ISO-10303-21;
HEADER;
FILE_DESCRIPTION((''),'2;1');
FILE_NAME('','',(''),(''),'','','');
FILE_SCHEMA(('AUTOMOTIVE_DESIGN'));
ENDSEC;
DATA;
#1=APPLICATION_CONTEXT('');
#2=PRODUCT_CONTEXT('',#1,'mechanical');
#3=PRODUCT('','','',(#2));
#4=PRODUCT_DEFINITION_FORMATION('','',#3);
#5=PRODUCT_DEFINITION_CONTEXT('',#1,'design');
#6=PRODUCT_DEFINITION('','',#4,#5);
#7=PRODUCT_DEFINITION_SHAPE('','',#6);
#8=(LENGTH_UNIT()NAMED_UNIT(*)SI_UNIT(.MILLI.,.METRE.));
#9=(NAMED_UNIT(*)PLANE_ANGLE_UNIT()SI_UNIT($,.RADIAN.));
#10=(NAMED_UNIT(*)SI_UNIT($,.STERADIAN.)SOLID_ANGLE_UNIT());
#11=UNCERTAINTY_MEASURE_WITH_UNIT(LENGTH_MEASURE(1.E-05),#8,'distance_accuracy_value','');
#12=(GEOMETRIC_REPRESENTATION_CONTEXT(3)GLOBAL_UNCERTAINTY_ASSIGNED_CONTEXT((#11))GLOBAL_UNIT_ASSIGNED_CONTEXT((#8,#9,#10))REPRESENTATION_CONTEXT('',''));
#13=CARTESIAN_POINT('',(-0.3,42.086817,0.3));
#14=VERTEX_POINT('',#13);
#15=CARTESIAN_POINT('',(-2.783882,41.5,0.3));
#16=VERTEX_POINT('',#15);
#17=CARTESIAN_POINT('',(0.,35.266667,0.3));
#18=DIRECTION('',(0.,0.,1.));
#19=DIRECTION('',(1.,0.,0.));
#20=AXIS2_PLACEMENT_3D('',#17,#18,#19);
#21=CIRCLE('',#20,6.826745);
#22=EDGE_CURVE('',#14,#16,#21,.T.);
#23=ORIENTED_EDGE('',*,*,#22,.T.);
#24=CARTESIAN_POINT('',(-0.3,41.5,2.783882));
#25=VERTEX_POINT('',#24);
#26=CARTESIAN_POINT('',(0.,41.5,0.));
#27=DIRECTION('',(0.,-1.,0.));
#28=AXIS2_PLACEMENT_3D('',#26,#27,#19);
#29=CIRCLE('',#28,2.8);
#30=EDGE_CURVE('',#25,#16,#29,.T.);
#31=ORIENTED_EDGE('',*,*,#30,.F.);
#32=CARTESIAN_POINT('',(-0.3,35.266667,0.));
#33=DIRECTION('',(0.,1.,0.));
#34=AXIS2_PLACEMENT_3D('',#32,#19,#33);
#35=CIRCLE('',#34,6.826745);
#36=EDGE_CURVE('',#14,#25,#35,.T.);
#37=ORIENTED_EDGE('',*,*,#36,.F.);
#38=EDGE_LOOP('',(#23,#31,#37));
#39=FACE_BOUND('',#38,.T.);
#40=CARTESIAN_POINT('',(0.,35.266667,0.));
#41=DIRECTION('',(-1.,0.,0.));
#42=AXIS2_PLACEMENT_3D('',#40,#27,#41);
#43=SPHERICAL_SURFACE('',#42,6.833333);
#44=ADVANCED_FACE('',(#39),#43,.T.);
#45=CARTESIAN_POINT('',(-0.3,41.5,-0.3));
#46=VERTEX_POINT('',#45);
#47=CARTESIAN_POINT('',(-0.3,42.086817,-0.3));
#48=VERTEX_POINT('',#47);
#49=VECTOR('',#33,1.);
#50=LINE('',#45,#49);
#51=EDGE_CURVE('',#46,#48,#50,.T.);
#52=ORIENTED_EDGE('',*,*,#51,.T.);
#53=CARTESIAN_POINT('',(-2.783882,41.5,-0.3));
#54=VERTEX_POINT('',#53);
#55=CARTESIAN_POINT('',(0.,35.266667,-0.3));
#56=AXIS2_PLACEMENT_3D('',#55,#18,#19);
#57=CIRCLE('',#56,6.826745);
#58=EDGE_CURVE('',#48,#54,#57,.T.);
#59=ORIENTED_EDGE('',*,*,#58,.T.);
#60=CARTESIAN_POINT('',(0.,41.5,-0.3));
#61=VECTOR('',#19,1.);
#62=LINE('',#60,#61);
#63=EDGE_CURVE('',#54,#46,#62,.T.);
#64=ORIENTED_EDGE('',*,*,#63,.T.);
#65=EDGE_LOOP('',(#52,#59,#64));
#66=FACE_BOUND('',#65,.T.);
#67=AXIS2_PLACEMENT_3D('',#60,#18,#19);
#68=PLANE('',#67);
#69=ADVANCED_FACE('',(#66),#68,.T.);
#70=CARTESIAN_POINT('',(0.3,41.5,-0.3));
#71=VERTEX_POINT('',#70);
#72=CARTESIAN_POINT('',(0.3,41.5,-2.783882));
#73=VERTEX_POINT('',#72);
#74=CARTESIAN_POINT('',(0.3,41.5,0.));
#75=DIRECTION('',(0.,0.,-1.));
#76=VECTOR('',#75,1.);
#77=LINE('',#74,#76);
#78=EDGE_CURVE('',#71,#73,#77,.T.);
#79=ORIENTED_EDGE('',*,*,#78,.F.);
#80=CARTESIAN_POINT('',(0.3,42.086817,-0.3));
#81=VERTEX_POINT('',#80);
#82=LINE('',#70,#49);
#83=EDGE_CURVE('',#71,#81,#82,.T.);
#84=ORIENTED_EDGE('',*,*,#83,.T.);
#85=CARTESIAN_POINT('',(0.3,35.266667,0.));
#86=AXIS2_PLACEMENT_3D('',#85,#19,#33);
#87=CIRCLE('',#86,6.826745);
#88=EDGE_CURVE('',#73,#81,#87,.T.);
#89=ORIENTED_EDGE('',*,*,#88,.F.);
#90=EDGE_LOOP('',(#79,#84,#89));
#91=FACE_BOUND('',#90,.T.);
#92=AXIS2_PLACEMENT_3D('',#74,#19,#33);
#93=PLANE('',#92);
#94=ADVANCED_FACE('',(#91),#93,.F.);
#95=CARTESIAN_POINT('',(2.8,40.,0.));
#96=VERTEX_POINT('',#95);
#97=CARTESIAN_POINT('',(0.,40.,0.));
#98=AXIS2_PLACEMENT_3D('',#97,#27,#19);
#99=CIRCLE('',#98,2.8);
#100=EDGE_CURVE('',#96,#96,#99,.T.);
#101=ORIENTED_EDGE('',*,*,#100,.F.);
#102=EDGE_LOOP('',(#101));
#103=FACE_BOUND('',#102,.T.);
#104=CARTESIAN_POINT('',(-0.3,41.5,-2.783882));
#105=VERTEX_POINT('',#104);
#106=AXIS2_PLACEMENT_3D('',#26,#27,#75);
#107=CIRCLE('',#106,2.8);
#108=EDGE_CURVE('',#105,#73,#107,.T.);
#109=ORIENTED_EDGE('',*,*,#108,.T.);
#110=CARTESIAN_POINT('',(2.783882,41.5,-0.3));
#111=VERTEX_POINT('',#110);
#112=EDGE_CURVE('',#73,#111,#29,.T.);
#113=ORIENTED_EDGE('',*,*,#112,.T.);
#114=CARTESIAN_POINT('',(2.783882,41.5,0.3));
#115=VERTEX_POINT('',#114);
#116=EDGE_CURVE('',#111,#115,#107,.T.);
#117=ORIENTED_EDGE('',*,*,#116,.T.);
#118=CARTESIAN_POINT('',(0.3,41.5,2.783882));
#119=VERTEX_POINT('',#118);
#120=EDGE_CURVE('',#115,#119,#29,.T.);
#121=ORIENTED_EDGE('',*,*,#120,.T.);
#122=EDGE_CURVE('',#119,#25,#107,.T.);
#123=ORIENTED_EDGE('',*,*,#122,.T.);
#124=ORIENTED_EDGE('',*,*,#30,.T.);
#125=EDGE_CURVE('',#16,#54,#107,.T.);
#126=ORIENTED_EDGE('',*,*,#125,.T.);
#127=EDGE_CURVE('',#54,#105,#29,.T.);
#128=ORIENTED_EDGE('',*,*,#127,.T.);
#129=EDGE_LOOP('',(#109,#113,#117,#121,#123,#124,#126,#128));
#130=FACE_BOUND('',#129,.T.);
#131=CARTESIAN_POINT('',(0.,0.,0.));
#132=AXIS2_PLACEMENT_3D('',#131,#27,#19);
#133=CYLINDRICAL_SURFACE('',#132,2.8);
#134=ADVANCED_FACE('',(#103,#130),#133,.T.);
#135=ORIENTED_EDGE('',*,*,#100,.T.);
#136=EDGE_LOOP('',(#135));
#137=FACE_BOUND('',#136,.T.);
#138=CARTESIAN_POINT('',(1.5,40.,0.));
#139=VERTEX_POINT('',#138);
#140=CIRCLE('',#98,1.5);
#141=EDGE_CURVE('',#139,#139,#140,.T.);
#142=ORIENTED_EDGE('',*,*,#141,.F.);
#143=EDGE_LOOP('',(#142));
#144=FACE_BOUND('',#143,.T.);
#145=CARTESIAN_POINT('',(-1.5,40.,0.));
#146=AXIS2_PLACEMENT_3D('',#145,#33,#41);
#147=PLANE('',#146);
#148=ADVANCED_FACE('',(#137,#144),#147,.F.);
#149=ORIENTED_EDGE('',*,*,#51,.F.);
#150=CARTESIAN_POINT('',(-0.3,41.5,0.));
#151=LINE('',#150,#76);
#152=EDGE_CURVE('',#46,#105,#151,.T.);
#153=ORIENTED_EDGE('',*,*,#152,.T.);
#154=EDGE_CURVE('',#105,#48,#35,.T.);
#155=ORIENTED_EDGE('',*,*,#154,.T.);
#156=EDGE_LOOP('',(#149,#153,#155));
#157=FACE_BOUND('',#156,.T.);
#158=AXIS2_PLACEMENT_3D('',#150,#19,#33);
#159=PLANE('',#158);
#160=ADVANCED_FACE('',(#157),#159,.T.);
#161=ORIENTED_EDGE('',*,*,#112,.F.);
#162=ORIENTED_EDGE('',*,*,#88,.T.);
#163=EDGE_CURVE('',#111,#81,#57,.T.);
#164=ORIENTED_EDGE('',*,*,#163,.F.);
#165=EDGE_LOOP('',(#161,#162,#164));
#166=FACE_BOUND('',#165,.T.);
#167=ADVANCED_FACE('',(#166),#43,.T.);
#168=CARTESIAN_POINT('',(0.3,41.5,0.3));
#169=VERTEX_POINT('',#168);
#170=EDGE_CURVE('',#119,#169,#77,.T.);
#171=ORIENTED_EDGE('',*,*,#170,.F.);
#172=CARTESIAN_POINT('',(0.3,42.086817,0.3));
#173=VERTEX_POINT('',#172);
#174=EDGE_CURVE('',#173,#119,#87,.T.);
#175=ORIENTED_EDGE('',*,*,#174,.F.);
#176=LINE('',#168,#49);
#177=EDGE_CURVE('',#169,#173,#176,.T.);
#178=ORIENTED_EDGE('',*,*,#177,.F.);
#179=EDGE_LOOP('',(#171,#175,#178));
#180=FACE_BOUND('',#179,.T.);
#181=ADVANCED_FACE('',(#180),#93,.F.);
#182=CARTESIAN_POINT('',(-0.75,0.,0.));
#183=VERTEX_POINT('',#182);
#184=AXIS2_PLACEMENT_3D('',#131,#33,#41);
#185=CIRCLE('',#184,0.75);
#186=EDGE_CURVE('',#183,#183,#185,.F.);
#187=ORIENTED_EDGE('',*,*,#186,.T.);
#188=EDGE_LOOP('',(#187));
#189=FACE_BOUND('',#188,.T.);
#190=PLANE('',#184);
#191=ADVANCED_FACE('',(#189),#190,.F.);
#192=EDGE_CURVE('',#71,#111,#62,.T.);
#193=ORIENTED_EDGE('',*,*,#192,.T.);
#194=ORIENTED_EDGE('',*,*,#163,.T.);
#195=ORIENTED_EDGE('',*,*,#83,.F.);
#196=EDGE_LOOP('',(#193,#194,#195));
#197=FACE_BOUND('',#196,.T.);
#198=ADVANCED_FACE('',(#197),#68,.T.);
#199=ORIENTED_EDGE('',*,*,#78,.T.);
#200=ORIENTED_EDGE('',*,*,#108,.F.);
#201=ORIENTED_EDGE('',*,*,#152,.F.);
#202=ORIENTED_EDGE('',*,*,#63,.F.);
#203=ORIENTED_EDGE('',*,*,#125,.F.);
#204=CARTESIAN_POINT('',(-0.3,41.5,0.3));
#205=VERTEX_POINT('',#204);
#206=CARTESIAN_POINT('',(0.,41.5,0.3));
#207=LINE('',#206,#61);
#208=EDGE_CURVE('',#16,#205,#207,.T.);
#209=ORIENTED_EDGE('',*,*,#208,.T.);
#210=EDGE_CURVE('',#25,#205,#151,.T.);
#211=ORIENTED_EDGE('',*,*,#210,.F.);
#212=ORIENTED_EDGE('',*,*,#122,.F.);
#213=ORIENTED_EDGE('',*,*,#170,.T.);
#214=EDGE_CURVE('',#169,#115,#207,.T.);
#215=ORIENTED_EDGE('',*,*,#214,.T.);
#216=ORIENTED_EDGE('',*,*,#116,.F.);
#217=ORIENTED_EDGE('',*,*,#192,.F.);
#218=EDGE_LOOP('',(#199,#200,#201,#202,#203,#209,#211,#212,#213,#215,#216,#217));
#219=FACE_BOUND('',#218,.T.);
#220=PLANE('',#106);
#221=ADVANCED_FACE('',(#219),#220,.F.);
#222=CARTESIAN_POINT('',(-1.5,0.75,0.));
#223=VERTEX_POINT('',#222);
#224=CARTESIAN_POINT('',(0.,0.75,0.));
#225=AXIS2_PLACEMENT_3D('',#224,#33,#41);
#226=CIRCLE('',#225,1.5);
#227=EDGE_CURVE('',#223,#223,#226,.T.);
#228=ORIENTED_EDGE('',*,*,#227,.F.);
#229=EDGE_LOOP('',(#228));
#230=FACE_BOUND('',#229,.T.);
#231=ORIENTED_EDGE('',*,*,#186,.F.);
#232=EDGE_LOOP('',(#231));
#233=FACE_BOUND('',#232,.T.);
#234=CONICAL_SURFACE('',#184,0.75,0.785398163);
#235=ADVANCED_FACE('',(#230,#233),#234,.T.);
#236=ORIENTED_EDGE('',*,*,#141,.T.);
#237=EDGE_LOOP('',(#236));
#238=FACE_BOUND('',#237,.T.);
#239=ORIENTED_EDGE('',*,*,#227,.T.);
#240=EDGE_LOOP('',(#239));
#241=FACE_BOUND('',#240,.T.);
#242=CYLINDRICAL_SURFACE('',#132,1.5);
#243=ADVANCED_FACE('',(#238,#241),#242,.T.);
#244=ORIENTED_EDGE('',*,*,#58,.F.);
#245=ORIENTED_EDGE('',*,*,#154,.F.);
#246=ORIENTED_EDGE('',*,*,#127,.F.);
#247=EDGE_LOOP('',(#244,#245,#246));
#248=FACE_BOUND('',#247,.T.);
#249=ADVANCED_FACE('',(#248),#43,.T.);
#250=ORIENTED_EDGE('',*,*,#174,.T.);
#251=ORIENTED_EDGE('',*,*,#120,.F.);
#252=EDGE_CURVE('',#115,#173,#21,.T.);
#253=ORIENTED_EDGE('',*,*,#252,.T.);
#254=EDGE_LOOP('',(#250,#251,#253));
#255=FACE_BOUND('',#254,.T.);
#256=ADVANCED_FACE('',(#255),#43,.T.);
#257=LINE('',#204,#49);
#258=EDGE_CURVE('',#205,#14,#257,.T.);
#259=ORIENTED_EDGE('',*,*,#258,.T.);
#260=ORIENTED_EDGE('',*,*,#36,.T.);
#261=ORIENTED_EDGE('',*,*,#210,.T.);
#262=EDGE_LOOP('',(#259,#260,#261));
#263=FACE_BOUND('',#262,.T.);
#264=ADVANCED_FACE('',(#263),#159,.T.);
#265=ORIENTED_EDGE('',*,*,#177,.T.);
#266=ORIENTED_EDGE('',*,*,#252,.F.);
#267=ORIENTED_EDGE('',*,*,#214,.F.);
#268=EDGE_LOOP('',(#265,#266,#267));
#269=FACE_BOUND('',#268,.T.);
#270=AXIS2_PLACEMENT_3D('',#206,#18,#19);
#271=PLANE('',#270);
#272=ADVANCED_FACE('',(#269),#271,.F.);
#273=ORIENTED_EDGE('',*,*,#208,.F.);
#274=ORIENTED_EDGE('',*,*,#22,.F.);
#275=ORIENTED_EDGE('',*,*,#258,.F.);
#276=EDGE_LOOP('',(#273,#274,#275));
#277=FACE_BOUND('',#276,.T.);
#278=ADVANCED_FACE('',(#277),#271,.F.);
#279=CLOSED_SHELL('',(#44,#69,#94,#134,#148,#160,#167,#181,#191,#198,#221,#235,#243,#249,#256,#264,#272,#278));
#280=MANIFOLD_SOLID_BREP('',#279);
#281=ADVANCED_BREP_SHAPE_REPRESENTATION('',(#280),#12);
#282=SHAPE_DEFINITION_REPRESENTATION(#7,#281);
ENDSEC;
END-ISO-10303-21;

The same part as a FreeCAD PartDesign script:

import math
import FreeCAD as App
import Part
import Sketcher


def edges_at(feature, points):
    """Names of the edges that pass closest to the given points."""
    edges = feature.Shape.Edges
    near = lambda p: min(range(len(edges)), key=lambda i: edges[i].distToShape(Part.Vertex(*p))[0])
    return sorted({f"Edge{near(p) + 1}" for p in points})

doc = App.newDocument("Part")
params = doc.addObject("Spreadsheet::Sheet", "Params")
for row, (alias, value) in enumerate([
    ("sketch1_height", "40 mm"),
    ("sketch1_width", "1.5 mm"),
    ("sketch1_width2", "1.3 mm"),
    ("sketch1_height2", "42.1 mm"),
    ("revolution_angle", "360 deg"),
    ("sketch2_radius", "2.8 mm"),
    ("pocket1_length", "3.5 mm"),
    ("chamfer_size", "0.75 mm"),
], start=1):
    params.set(f"A{row}", alias)
    params.set(f"B{row}", "=" + value)
    params.setAlias(f"B{row}", alias)

body = doc.addObject("PartDesign::Body", "Body")

sketch1 = doc.addObject("Sketcher::SketchObject", "Sketch")
body.addObject(sketch1)
sketch1.AttachmentSupport = (doc.XY_Plane, [""])
sketch1.MapMode = "FlatFace"
sketch1.addGeometry([
    Part.LineSegment(App.Vector(-1.5, 0, 0), App.Vector(0, 0, 0)),
    Part.LineSegment(App.Vector(0, 0, 0), App.Vector(0, 42.1, 0)),
    Part.ArcOfCircle(Part.Circle(App.Vector(0, 35.3, 0), App.Vector(0, 0, 1), 6.8), math.radians(90), math.radians(114)),
    Part.LineSegment(App.Vector(-2.8, 41.5, 0), App.Vector(-2.8, 40, 0)),
    Part.LineSegment(App.Vector(-2.8, 40, 0), App.Vector(-1.5, 40, 0)),
    Part.LineSegment(App.Vector(-1.5, 40, 0), App.Vector(-1.5, 0, 0)),
], False)
sketch1.addConstraint([
    Sketcher.Constraint("Coincident", 0, 2, 1, 1),
    Sketcher.Constraint("Coincident", 1, 2, 2, 1),
    Sketcher.Constraint("Coincident", 2, 2, 3, 1),
    Sketcher.Constraint("Coincident", 3, 2, 4, 1),
    Sketcher.Constraint("Coincident", 4, 2, 5, 1),
    Sketcher.Constraint("Coincident", 5, 2, 0, 1),
    Sketcher.Constraint("Horizontal", 0),
    Sketcher.Constraint("Vertical", 1),
    Sketcher.Constraint("Vertical", 3),
    Sketcher.Constraint("Horizontal", 4),
    Sketcher.Constraint("Vertical", 5),
    Sketcher.Constraint("Coincident", 0, 2, -1, 1),
    Sketcher.Constraint("PointOnObject", 2, 3, -2),
    Sketcher.Constraint("Equal", 0, 3),
    Sketcher.Constraint("DistanceY", 5, 2, 5, 1, 40.0),
    Sketcher.Constraint("DistanceX", 0, 1, 0, 2, 1.5),
    Sketcher.Constraint("DistanceX", 4, 1, 4, 2, 1.3),
    Sketcher.Constraint("DistanceY", 1, 1, 1, 2, 42.1),
])
sketch1.setExpression("Constraints[14]", "Params.sketch1_height")
sketch1.setExpression("Constraints[15]", "Params.sketch1_width")
sketch1.setExpression("Constraints[16]", "Params.sketch1_width2")
sketch1.setExpression("Constraints[17]", "Params.sketch1_height2")
revolution = doc.addObject("PartDesign::Revolution", "Revolution")
body.addObject(revolution)
revolution.Profile = sketch1
revolution.ReferenceAxis = (sketch1, ["V_Axis"])
revolution.setExpression("Angle", "Params.revolution_angle")

sketch2 = doc.addObject("Sketcher::SketchObject", "Sketch001")
body.addObject(sketch2)
sketch2.AttachmentSupport = (doc.XZ_Plane, [""])
sketch2.MapMode = "FlatFace"
sketch2.AttachmentOffset = App.Placement(App.Vector(0, 0, -45), App.Rotation())
sketch2.addGeometry([
    Part.LineSegment(App.Vector(-0.3, -0.3, 0), App.Vector(-0.3, -2.78, 0)),
    Part.ArcOfCircle(Part.Circle(App.Vector(0, 0, 0), App.Vector(0, 0, 1), 2.8), math.radians(-96.15), math.radians(-90)),
    Part.ArcOfCircle(Part.Circle(App.Vector(0, 0, 0), App.Vector(0, 0, 1), 2.8), math.radians(-90), math.radians(-83.85)),
    Part.LineSegment(App.Vector(0.3, -2.78, 0), App.Vector(0.3, -0.3, 0)),
    Part.LineSegment(App.Vector(0.3, -0.3, 0), App.Vector(2.78, -0.3, 0)),
    Part.ArcOfCircle(Part.Circle(App.Vector(0, 0, 0), App.Vector(0, 0, 1), 2.8), math.radians(-6.15), math.radians(0)),
    Part.ArcOfCircle(Part.Circle(App.Vector(0, 0, 0), App.Vector(0, 0, 1), 2.8), math.radians(0), math.radians(6.15)),
    Part.LineSegment(App.Vector(2.78, 0.3, 0), App.Vector(0.3, 0.3, 0)),
    Part.LineSegment(App.Vector(0.3, 0.3, 0), App.Vector(0.3, 2.78, 0)),
    Part.ArcOfCircle(Part.Circle(App.Vector(0, 0, 0), App.Vector(0, 0, 1), 2.8), math.radians(83.85), math.radians(90)),
    Part.ArcOfCircle(Part.Circle(App.Vector(0, 0, 0), App.Vector(0, 0, 1), 2.8), math.radians(90), math.radians(96.15)),
    Part.LineSegment(App.Vector(-0.3, 2.78, 0), App.Vector(-0.3, 0.3, 0)),
    Part.LineSegment(App.Vector(-0.3, 0.3, 0), App.Vector(-2.78, 0.3, 0)),
    Part.ArcOfCircle(Part.Circle(App.Vector(0, 0, 0), App.Vector(0, 0, 1), 2.8), math.radians(173.85), math.radians(180)),
    Part.ArcOfCircle(Part.Circle(App.Vector(0, 0, 0), App.Vector(0, 0, 1), 2.8), math.radians(180), math.radians(186.15)),
    Part.LineSegment(App.Vector(-2.78, -0.3, 0), App.Vector(-0.3, -0.3, 0)),
], False)
sketch2.addConstraint([
    Sketcher.Constraint("Coincident", 0, 2, 1, 1),
    Sketcher.Constraint("Tangent", 1, 2, 2, 1),
    Sketcher.Constraint("Coincident", 2, 2, 3, 1),
    Sketcher.Constraint("Coincident", 3, 2, 4, 1),
    Sketcher.Constraint("Coincident", 4, 2, 5, 1),
    Sketcher.Constraint("Tangent", 5, 2, 6, 1),
    Sketcher.Constraint("Coincident", 6, 2, 7, 1),
    Sketcher.Constraint("Coincident", 7, 2, 8, 1),
    Sketcher.Constraint("Coincident", 8, 2, 9, 1),
    Sketcher.Constraint("Tangent", 9, 2, 10, 1),
    Sketcher.Constraint("Coincident", 10, 2, 11, 1),
    Sketcher.Constraint("Coincident", 11, 2, 12, 1),
    Sketcher.Constraint("Coincident", 12, 2, 13, 1),
    Sketcher.Constraint("Tangent", 13, 2, 14, 1),
    Sketcher.Constraint("Coincident", 14, 2, 15, 1),
    Sketcher.Constraint("Coincident", 15, 2, 0, 1),
    Sketcher.Constraint("Vertical", 0),
    Sketcher.Constraint("Vertical", 3),
    Sketcher.Constraint("Horizontal", 4),
    Sketcher.Constraint("Horizontal", 7),
    Sketcher.Constraint("Vertical", 8),
    Sketcher.Constraint("Vertical", 11),
    Sketcher.Constraint("Horizontal", 12),
    Sketcher.Constraint("Horizontal", 15),
    Sketcher.Constraint("Coincident", 1, 3, -1, 1),
    Sketcher.Constraint("Coincident", 5, 3, -1, 1),
    Sketcher.Constraint("Coincident", 9, 3, -1, 1),
    Sketcher.Constraint("Coincident", 13, 3, -1, 1),
    Sketcher.Constraint("Equal", 1, 2),
    Sketcher.Constraint("Equal", 2, 5),
    Sketcher.Constraint("Equal", 5, 6),
    Sketcher.Constraint("Equal", 6, 9),
    Sketcher.Constraint("Equal", 9, 10),
    Sketcher.Constraint("Equal", 10, 13),
    Sketcher.Constraint("Equal", 13, 14),
    Sketcher.Constraint("Symmetric", 3, 2, 11, 2, -1, 1),
    Sketcher.Constraint("Symmetric", 7, 2, 15, 2, -1, 1),
    Sketcher.Constraint("Symmetric", 7, 2, 11, 2, -2),
    Sketcher.Constraint("PointOnObject", 1, 2, -2),
    Sketcher.Constraint("PointOnObject", 5, 2, -1),
    Sketcher.Constraint("PointOnObject", 9, 2, -2),
    Sketcher.Constraint("PointOnObject", 13, 2, -1),
    Sketcher.Constraint("Equal", 15, 0),
    Sketcher.Constraint("Radius", 1, 2.8),
    Sketcher.Constraint("DistanceX", 0, 2, -1, 1, 0.3),
])
sketch2.setExpression("Constraints[43]", "Params.sketch2_radius")
pocket1 = doc.addObject("PartDesign::Pocket", "Pocket")
body.addObject(pocket1)
pocket1.Profile = sketch2
pocket1.setExpression("Length", "Params.pocket1_length")
pocket1.Reversed = True
doc.recompute()

chamfer = doc.addObject("PartDesign::Chamfer", "Chamfer")
body.addObject(chamfer)
chamfer.Base = (pocket1, edges_at(pocket1, [(-1.5, 0, 0)]))
chamfer.setExpression("Size", "Params.chamfer_size")

doc.recompute()
